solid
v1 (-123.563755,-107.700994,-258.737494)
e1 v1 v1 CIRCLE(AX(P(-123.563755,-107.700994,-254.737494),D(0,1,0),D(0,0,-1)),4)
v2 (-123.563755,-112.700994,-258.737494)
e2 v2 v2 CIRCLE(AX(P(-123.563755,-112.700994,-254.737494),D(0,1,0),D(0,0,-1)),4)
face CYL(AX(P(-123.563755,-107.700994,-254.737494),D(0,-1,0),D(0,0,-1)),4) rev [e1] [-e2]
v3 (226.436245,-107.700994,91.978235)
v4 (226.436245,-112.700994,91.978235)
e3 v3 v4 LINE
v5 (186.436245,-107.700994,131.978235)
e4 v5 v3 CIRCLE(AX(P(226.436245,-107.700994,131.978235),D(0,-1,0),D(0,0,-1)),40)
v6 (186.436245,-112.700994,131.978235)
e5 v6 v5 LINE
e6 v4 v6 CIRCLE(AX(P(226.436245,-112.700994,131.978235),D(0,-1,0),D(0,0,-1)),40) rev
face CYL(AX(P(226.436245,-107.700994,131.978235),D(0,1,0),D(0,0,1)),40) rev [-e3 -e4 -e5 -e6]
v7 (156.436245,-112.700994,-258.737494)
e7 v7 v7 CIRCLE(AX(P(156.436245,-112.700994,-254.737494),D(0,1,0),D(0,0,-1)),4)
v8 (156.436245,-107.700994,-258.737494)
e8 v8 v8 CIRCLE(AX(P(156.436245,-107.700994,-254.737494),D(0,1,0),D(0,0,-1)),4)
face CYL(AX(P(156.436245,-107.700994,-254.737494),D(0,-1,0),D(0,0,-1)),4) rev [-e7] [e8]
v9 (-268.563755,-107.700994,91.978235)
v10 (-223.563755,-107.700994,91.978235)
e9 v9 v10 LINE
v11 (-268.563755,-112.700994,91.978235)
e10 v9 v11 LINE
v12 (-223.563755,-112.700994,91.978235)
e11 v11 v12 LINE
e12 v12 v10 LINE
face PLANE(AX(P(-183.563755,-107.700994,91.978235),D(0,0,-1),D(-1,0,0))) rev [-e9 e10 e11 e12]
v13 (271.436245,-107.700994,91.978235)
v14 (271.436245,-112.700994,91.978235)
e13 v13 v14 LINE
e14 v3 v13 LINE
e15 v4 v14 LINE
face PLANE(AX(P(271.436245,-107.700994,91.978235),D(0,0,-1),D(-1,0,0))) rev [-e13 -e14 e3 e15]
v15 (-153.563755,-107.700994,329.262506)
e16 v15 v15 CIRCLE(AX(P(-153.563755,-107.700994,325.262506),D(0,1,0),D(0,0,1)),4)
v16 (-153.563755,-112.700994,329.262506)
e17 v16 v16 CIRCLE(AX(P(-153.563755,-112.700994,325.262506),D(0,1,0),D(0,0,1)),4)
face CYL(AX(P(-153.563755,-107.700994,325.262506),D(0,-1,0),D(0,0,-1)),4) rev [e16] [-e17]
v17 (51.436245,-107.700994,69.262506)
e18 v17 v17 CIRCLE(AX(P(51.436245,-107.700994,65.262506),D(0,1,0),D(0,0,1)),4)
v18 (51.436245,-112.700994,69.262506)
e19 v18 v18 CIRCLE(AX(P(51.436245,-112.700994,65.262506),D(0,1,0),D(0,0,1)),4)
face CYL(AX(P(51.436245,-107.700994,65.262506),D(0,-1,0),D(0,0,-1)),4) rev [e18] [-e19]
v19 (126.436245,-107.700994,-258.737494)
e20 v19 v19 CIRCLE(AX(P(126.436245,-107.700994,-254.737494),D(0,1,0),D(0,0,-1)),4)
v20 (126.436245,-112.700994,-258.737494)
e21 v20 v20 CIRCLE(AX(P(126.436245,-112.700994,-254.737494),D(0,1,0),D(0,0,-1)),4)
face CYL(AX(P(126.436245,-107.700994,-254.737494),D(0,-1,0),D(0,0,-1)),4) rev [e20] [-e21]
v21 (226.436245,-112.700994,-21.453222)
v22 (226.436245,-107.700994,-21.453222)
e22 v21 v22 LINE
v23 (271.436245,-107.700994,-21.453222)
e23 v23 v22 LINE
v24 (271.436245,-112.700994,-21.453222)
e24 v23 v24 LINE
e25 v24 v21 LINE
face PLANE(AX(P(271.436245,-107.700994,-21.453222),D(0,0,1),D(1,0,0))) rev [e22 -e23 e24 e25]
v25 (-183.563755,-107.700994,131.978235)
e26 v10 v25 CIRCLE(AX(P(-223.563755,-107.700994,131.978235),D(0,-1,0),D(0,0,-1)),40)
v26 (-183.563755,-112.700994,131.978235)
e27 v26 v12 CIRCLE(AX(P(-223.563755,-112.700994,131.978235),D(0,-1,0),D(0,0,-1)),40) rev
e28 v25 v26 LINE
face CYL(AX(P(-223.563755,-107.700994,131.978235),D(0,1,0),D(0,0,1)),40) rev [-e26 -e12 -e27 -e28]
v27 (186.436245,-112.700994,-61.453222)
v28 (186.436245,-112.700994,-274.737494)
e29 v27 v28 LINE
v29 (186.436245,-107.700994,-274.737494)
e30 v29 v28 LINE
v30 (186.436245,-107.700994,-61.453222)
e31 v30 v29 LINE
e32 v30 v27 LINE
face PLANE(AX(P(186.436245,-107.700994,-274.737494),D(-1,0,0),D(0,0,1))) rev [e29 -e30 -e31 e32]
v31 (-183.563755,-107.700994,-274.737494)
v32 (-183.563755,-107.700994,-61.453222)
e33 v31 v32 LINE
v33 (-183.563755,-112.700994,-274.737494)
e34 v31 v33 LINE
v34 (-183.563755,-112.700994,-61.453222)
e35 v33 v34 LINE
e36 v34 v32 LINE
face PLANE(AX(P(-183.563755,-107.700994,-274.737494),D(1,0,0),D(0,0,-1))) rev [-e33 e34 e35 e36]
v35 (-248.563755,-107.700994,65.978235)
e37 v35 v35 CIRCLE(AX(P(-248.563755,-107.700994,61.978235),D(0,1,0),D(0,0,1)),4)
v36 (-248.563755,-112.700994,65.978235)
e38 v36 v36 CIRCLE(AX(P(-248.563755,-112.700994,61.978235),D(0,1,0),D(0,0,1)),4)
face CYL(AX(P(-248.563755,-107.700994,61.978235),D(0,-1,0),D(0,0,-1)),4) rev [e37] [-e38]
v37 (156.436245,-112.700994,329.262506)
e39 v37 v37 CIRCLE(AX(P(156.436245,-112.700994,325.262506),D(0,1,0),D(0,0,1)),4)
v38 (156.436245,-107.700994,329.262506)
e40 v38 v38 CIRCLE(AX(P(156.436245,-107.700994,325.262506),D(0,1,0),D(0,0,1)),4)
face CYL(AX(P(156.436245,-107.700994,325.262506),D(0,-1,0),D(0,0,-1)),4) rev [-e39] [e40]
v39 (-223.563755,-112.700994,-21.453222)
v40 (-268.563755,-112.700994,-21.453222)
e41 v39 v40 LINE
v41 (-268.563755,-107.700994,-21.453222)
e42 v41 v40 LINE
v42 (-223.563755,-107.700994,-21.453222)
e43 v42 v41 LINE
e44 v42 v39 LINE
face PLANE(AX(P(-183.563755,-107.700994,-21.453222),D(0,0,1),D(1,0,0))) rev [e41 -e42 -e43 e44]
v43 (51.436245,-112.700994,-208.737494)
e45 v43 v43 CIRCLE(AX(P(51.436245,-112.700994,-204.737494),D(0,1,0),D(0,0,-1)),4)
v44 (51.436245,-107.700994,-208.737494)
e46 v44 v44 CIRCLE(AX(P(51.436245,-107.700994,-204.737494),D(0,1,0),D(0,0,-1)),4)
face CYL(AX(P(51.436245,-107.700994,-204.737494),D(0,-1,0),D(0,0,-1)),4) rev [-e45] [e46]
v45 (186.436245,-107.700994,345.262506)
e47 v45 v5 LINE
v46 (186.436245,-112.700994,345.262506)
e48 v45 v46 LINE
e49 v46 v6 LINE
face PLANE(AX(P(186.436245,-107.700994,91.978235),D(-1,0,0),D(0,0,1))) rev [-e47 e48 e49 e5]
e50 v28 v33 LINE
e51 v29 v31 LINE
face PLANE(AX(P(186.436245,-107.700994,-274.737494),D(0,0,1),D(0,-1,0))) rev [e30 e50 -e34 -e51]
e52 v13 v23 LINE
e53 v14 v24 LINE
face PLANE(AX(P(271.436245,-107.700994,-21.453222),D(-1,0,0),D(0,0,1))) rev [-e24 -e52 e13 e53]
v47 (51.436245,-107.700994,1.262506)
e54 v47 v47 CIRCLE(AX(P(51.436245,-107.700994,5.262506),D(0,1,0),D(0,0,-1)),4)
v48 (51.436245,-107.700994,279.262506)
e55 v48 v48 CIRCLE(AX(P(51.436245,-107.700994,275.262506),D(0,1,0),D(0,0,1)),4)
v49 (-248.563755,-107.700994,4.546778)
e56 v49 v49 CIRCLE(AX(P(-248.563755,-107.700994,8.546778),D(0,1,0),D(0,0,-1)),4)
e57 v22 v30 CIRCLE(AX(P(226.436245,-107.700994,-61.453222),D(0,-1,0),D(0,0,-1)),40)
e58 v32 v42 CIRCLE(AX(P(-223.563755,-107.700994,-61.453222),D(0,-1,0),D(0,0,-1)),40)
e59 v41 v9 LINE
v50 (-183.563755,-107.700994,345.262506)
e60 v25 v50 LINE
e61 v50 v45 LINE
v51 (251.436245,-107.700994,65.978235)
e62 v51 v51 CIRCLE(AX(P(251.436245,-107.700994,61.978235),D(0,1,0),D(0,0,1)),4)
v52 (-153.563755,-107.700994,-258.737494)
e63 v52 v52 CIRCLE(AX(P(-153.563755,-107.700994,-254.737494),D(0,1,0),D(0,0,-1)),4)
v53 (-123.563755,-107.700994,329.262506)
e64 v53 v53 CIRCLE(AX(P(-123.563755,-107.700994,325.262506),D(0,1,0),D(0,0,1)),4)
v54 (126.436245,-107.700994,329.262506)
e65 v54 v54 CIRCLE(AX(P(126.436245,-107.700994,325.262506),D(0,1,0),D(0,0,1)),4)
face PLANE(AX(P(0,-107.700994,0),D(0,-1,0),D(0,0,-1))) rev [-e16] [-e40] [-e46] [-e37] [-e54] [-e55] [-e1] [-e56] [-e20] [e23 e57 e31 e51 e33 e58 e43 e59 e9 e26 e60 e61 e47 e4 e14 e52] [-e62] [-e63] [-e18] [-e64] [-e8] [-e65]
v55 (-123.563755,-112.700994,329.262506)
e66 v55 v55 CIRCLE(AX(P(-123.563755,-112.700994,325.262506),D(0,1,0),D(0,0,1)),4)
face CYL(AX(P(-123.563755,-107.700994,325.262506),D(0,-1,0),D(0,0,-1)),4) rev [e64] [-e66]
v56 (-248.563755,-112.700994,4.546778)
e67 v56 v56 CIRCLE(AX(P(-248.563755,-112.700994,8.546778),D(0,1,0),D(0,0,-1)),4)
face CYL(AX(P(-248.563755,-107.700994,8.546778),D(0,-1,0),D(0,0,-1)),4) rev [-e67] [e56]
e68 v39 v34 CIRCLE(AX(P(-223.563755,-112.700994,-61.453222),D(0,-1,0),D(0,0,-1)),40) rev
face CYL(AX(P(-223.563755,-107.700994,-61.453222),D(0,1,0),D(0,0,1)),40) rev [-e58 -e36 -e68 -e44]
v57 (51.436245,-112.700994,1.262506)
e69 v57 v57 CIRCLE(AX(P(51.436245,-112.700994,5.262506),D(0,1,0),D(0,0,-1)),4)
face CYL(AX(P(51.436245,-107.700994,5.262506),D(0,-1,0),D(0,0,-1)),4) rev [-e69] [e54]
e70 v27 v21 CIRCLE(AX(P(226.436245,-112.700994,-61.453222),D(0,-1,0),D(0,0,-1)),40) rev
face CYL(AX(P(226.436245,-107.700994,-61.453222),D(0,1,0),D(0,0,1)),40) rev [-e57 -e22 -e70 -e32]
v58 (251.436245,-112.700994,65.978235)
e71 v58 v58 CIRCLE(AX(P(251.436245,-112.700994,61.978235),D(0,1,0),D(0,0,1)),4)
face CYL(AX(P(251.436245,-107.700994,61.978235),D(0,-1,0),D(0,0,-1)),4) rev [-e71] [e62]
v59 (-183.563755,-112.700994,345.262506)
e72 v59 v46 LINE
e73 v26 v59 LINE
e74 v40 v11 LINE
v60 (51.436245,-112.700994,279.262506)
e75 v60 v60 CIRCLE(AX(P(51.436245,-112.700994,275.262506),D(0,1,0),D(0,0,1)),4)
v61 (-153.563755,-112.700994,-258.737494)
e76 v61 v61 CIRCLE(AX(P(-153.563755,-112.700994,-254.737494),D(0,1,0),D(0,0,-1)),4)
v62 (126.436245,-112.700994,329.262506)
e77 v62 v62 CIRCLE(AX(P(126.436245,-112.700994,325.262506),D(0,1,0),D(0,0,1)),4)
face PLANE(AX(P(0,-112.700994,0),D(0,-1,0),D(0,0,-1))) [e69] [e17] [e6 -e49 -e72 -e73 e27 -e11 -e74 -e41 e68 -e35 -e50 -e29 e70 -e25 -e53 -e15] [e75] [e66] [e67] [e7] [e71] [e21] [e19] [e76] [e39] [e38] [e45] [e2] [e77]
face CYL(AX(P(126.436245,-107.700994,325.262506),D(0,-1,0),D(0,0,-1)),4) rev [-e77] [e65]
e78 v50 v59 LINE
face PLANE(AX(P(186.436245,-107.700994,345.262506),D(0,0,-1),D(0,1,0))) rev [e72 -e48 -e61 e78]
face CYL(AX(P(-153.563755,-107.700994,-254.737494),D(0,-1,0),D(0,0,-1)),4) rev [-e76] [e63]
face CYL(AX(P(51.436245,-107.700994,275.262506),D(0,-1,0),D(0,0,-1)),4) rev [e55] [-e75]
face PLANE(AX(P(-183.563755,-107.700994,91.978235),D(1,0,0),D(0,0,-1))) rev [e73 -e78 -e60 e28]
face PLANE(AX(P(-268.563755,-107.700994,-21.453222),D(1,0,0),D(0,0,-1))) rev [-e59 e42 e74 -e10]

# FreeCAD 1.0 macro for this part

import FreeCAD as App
import Part
import Sketcher
from FreeCAD import Vector
Q = App.Units.Quantity


def edges_at(feature, points):
    """Names of the edges that pass closest to the given points."""
    edges = feature.Shape.Edges
    near = lambda p: min(range(len(edges)), key=lambda i: edges[i].distToShape(Part.Vertex(*p))[0])
    return sorted({f"Edge{near(p) + 1}" for p in points})


def add_polygon(sketch, points):
    """Adds a closed chain of lines whose ends are joined by coincident constraints."""
    first, n = sketch.GeometryCount, len(points)
    for a, b in zip(points, points[1:] + points[:1]):
        sketch.addGeometry(Part.LineSegment(App.Vector(*a, 0), App.Vector(*b, 0)), False)
    for i in range(n):
        sketch.addConstraint(Sketcher.Constraint("Coincident", first + i, 2, first + (i + 1) % n, 1))

doc = App.newDocument("Part")
body = doc.addObject("PartDesign::Body", "Body")

# Sketch on XZ plane
sketch1 = body.newObject("Sketcher::SketchObject", "Sketch")
sketch1.AttachmentSupport = (doc.getObject("XZ_Plane"), [""])
sketch1.MapMode = "FlatFace"
sketch1.AttachmentOffset = App.Placement(Vector(0, 0, 112.700994), App.Rotation())
add_polygon(sketch1, [(271.4, -21.5), (186.4, -21.5), (186.4, -274.7), (-183.6, -274.7), (-183.6, -21.5), (-268.6, -21.5), (-268.6, 92), (-183.6, 92), (-183.6, 345.3), (186.4, 345.3), (186.4, 92), (271.4, 92)])  # lines 0-11
sketch1.addGeometry(Part.Circle(Vector(-153.6, 325.3, 0), Vector(0, 0, 1), 4), False)  # 12
sketch1.addGeometry(Part.Circle(Vector(-123.6, 325.3, 0), Vector(0, 0, 1), 4), False)  # 13
sketch1.addGeometry(Part.Circle(Vector(-248.6, 62, 0), Vector(0, 0, 1), 4), False)  # 14
sketch1.addGeometry(Part.Circle(Vector(51.4, 275.3, 0), Vector(0, 0, 1), 4), False)  # 15
sketch1.addGeometry(Part.Circle(Vector(126.4, 325.3, 0), Vector(0, 0, 1), 4), False)  # 16
sketch1.addGeometry(Part.Circle(Vector(156.4, 325.3, 0), Vector(0, 0, 1), 4), False)  # 17
sketch1.addGeometry(Part.Circle(Vector(51.4, 65.3, 0), Vector(0, 0, 1), 4), False)  # 18
sketch1.addGeometry(Part.Circle(Vector(251.4, 62, 0), Vector(0, 0, 1), 4), False)  # 19
sketch1.addGeometry(Part.Circle(Vector(-248.6, 8.5, 0), Vector(0, 0, 1), 4), False)  # 20
sketch1.addGeometry(Part.Circle(Vector(-153.6, -254.7, 0), Vector(0, 0, 1), 4), False)  # 21
sketch1.addGeometry(Part.Circle(Vector(-123.6, -254.7, 0), Vector(0, 0, 1), 4), False)  # 22
sketch1.addGeometry(Part.Circle(Vector(51.4, 5.3, 0), Vector(0, 0, 1), 4), False)  # 23
sketch1.addGeometry(Part.Circle(Vector(51.4, -204.7, 0), Vector(0, 0, 1), 4), False)  # 24
sketch1.addGeometry(Part.Circle(Vector(126.4, -254.7, 0), Vector(0, 0, 1), 4), False)  # 25
sketch1.addGeometry(Part.Circle(Vector(156.4, -254.7, 0), Vector(0, 0, 1), 4), False)  # 26
sketch1.addConstraint([
    Sketcher.Constraint("Horizontal", 0),
    Sketcher.Constraint("Vertical", 1),
    Sketcher.Constraint("Horizontal", 2),
    Sketcher.Constraint("Vertical", 3),
    Sketcher.Constraint("Horizontal", 4),
    Sketcher.Constraint("Vertical", 5),
    Sketcher.Constraint("Horizontal", 6),
    Sketcher.Constraint("Vertical", 7),
    Sketcher.Constraint("Horizontal", 8),
    Sketcher.Constraint("Vertical", 9),
    Sketcher.Constraint("Horizontal", 10),
    Sketcher.Constraint("Vertical", 11),
    Sketcher.Constraint("Equal", 12, 13),
    Sketcher.Constraint("Equal", 13, 14),
    Sketcher.Constraint("Equal", 14, 15),
    Sketcher.Constraint("Equal", 15, 16),
    Sketcher.Constraint("Equal", 16, 17),
    Sketcher.Constraint("Equal", 17, 18),
    Sketcher.Constraint("Equal", 18, 19),
    Sketcher.Constraint("Equal", 19, 20),
    Sketcher.Constraint("Equal", 20, 21),
    Sketcher.Constraint("Equal", 21, 22),
    Sketcher.Constraint("Equal", 22, 23),
    Sketcher.Constraint("Equal", 23, 24),
    Sketcher.Constraint("Equal", 24, 25),
    Sketcher.Constraint("Equal", 25, 26),
    Sketcher.Constraint("Horizontal", 12, 3, 13, 3),
    Sketcher.Constraint("Horizontal", 13, 3, 16, 3),
    Sketcher.Constraint("Horizontal", 16, 3, 17, 3),
    Sketcher.Constraint("Horizontal", 14, 3, 19, 3),
    Sketcher.Constraint("Horizontal", 21, 3, 22, 3),
    Sketcher.Constraint("Horizontal", 22, 3, 25, 3),
    Sketcher.Constraint("Horizontal", 25, 3, 26, 3),
    Sketcher.Constraint("Horizontal", 0, 2, 3, 2),
    Sketcher.Constraint("Horizontal", 6, 2, 9, 2),
    Sketcher.Constraint("Vertical", 15, 3, 18, 3),
    Sketcher.Constraint("Vertical", 14, 3, 20, 3),
    Sketcher.Constraint("Vertical", 12, 3, 21, 3),
    Sketcher.Constraint("Vertical", 13, 3, 22, 3),
    Sketcher.Constraint("Vertical", 18, 3, 23, 3),
    Sketcher.Constraint("Vertical", 23, 3, 24, 3),
    Sketcher.Constraint("Vertical", 16, 3, 25, 3),
    Sketcher.Constraint("Vertical", 17, 3, 26, 3),
    Sketcher.Constraint("Vertical", 3, 2, 6, 2),
    Sketcher.Constraint("Vertical", 1, 2, 8, 2),
    Sketcher.Constraint("Equal", 0, 4),
    Sketcher.Constraint("Equal", 3, 7),
    Sketcher.Constraint("Diameter", 12, Q("8 mm")),
    Sketcher.Constraint("DistanceX", 0, 2, 0, 1, Q("85 mm")),
    Sketcher.Constraint("DistanceX", 2, 2, 2, 1, Q("370 mm")),
    Sketcher.Constraint("DistanceX", 12, 3, 13, 3, Q("30 mm")),
    Sketcher.Constraint("DistanceX", 14, 3, 12, 3, Q("95 mm")),
    Sketcher.Constraint("DistanceX", 13, 3, 15, 3, Q("175 mm")),
    Sketcher.Constraint("DistanceY", 15, 3, 13, 3, Q("50 mm")),
    Sketcher.Constraint("DistanceX", 15, 3, 16, 3, Q("75 mm")),
    Sketcher.Constraint("DistanceX", 16, 3, 17, 3, Q("30 mm")),
    Sketcher.Constraint("DistanceY", 18, 3, 15, 3, Q("210 mm")),
    Sketcher.Constraint("DistanceX", 18, 3, 19, 3, Q("200 mm")),
    Sketcher.Constraint("DistanceY", 21, 3, 18, 3, Q("320 mm")),
    Sketcher.Constraint("DistanceY", 23, 3, 18, 3, Q("60 mm")),
    Sketcher.Constraint("DistanceY", 22, 3, 24, 3, Q("50 mm")),
    Sketcher.Constraint("DistanceX", 0, 2, 19, 3, Q("65 mm")),
    Sketcher.Constraint("DistanceY", 1, 2, 26, 3, Q("20 mm")),
    Sketcher.Constraint("DistanceY", 3, 2, 20, 3, Q("30 mm")),
    Sketcher.Constraint("DistanceY", 14, 3, 5, 2, Q("30 mm")),
    Sketcher.Constraint("DistanceY", 12, 3, 7, 2, Q("20 mm")),
    Sketcher.Constraint("DistanceY", 1, 2, 1, 1, Q("253.284271 mm")),
    Sketcher.Constraint("DistanceX", 12, 3, -1, 1, Q("153.563755 mm")),
    Sketcher.Constraint("DistanceY", -1, 1, 12, 3, Q("325.262506 mm")),
])
pad1 = body.newObject("PartDesign::Pad", "Pad")
pad1.Profile = sketch1
pad1.Length = 5
pad1.Reversed = True
doc.recompute()

fillet = body.newObject("PartDesign::Fillet", "Fillet")
fillet.Base = (pad1, edges_at(pad1, [
    (186.436, -110.201, -21.453),
    (186.436, -110.201, 91.978),
    (-183.564, -110.201, 91.978),
    (-183.564, -110.201, -21.453),
]))
fillet.Radius = 40

doc.recompute()
